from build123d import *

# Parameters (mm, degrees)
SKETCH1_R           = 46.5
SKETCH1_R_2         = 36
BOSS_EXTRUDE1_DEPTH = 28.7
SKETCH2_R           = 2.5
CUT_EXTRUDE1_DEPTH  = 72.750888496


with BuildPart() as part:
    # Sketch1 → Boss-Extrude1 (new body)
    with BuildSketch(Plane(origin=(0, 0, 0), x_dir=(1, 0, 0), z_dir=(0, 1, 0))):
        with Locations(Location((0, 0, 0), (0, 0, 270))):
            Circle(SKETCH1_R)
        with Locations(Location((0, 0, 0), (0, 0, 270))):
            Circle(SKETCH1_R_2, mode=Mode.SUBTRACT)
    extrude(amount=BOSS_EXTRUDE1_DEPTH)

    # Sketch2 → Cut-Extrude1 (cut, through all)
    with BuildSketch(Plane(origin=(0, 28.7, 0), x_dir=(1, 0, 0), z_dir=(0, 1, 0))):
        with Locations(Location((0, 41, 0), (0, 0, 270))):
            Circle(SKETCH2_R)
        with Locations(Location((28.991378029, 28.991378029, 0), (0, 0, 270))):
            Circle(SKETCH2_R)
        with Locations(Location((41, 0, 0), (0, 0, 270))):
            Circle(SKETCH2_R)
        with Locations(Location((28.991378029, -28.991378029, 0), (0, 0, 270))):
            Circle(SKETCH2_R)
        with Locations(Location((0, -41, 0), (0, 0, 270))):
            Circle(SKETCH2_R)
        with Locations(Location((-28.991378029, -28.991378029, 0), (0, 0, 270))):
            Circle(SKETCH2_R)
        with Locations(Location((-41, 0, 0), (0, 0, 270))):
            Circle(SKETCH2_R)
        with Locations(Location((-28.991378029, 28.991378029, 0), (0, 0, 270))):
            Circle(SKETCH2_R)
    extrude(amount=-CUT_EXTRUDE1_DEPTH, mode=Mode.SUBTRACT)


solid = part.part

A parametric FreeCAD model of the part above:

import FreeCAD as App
import Part
import Sketcher
from FreeCAD import Vector
Q = App.Units.Quantity

doc = App.newDocument("Part")
body = doc.addObject("PartDesign::Body", "Body")

# Sketch on XZ plane
sketch1 = body.newObject("Sketcher::SketchObject", "Sketch")
sketch1.AttachmentSupport = (doc.getObject("XZ_Plane"), [""])
sketch1.MapMode = "FlatFace"
sketch1.addGeometry([
    Part.Circle(Vector(0, 0, 0), Vector(0, 0, 1), 46.5),
    Part.Circle(Vector(0, 0, 0), Vector(0, 0, 1), 36),
], False)
sketch1.addConstraint([
    Sketcher.Constraint("Coincident", 0, 3, -1, 1),
    Sketcher.Constraint("Coincident", 1, 3, -1, 1),
    Sketcher.Constraint("Diameter", 0, Q("93 mm")),
    Sketcher.Constraint("Diameter", 1, Q("72 mm")),
])
pad1 = body.newObject("PartDesign::Pad", "Pad")
pad1.Profile = sketch1
pad1.Length = 28.7
pad1.Reversed = True

# Sketch on XZ plane
sketch2 = body.newObject("Sketcher::SketchObject", "Sketch001")
sketch2.AttachmentSupport = (doc.getObject("XZ_Plane"), [""])
sketch2.MapMode = "FlatFace"
sketch2.AttachmentOffset = App.Placement(Vector(0, 0, -28.7), App.Rotation())
sketch2.addGeometry([
    Part.Circle(Vector(0, -41, 0), Vector(0, 0, 1), 2.5),  # 0
    Part.Circle(Vector(28.991378, -28.991378, 0), Vector(0, 0, 1), 2.5),  # 1
    Part.Circle(Vector(41, 0, 0), Vector(0, 0, 1), 2.5),  # 2
    Part.Circle(Vector(28.991378, 28.991378, 0), Vector(0, 0, 1), 2.5),  # 3
    Part.Circle(Vector(0, 41, 0), Vector(0, 0, 1), 2.5),  # 4
    Part.Circle(Vector(-28.991378, 28.991378, 0), Vector(0, 0, 1), 2.5),  # 5
    Part.Circle(Vector(-41, 0, 0), Vector(0, 0, 1), 2.5),  # 6
    Part.Circle(Vector(-28.991378, -28.991378, 0), Vector(0, 0, 1), 2.5),  # 7
], False)
sketch2.addConstraint([
    Sketcher.Constraint("Equal", 0, 1),
    Sketcher.Constraint("Equal", 1, 2),
    Sketcher.Constraint("Equal", 2, 3),
    Sketcher.Constraint("Equal", 3, 4),
    Sketcher.Constraint("Equal", 4, 5),
    Sketcher.Constraint("Equal", 5, 6),
    Sketcher.Constraint("Equal", 6, 7),
    Sketcher.Constraint("Symmetric", 0, 3, 4, 3, -1, 1),
    Sketcher.Constraint("Symmetric", 1, 3, 5, 3, -1, 1),
    Sketcher.Constraint("Symmetric", 2, 3, 6, 3, -1, 1),
    Sketcher.Constraint("Symmetric", 3, 3, 7, 3, -1, 1),
    Sketcher.Constraint("Symmetric", 3, 3, 5, 3, -2),
    Sketcher.Constraint("PointOnObject", 0, 3, -2),
    Sketcher.Constraint("PointOnObject", 2, 3, -1),
    Sketcher.Constraint("Diameter", 0, Q("5 mm")),
    Sketcher.Constraint("DistanceY", 0, 3, -1, 1, Q("41 mm")),
    Sketcher.Constraint("DistanceX", -1, 1, 2, 3, Q("41 mm")),
    Sketcher.Constraint("DistanceX", -1, 1, 1, 3, Q("28.991378 mm")),
    Sketcher.Constraint("DistanceY", 1, 3, -1, 1, Q("28.991378 mm")),
])
pocket1 = body.newObject("PartDesign::Pocket", "Pocket")
pocket1.Profile = sketch2
pocket1.Type = "ThroughAll"
pocket1.Reversed = True

doc.recompute()
